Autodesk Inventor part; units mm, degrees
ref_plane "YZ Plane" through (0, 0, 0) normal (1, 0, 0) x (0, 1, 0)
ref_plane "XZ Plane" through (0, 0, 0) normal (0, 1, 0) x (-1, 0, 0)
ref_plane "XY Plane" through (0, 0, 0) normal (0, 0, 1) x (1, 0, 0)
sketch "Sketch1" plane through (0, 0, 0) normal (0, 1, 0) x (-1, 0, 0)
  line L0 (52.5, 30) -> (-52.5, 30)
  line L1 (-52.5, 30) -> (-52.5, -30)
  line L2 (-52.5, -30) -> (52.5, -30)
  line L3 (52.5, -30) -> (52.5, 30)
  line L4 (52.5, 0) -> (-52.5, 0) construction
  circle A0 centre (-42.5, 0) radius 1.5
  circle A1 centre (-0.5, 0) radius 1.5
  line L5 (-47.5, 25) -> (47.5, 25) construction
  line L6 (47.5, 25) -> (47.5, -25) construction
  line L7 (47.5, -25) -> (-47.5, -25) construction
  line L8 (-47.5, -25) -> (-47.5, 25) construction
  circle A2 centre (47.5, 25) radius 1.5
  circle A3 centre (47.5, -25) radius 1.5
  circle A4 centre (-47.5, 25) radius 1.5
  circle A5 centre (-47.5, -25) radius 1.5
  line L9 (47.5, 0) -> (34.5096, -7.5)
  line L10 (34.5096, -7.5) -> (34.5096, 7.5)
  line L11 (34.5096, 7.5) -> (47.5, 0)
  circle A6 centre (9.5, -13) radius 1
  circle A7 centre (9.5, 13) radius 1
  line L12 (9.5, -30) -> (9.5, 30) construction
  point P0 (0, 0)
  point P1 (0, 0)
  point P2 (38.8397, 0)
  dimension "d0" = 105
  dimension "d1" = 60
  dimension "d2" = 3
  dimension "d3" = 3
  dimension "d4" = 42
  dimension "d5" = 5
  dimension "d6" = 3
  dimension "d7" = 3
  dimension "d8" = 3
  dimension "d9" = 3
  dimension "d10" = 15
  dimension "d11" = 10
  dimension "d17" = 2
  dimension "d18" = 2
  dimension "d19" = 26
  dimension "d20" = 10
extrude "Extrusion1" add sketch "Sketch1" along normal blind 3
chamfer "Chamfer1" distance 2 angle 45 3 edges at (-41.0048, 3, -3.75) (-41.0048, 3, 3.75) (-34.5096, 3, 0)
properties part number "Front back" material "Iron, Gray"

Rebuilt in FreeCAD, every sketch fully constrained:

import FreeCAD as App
import Part
import Sketcher


def edges_at(feature, points):
    """Names of the edges that pass closest to the given points."""
    edges = feature.Shape.Edges
    near = lambda p: min(range(len(edges)), key=lambda i: edges[i].distToShape(Part.Vertex(*p))[0])
    return sorted({f"Edge{near(p) + 1}" for p in points})

doc = App.newDocument("Part")
body = doc.addObject("PartDesign::Body", "Body")

sketch1 = body.newObject("Sketcher::SketchObject", "Sketch")
sketch1.AttachmentSupport = (doc.getObject("XZ_Plane"), [""])
sketch1.MapMode = "FlatFace"
sketch1.addGeometry([
    Part.LineSegment(App.Vector(-52.5, -30, 0), App.Vector(-52.5, 30, 0)),
    Part.LineSegment(App.Vector(-52.5, 30, 0), App.Vector(52.5, 30, 0)),
    Part.LineSegment(App.Vector(52.5, 30, 0), App.Vector(52.5, -30, 0)),
    Part.LineSegment(App.Vector(52.5, -30, 0), App.Vector(-52.5, -30, 0)),
    Part.Circle(App.Vector(47.5, -25, 0), App.Vector(0, 0, 1), 1.5),
    Part.Circle(App.Vector(-47.5, -25, 0), App.Vector(0, 0, 1), 1.5),
    Part.Circle(App.Vector(-9.5, -13, 0), App.Vector(0, 0, 1), 1),
    Part.Circle(App.Vector(42.5, 0, 0), App.Vector(0, 0, 1), 1.5),
    Part.Circle(App.Vector(0.5, 0, 0), App.Vector(0, 0, 1), 1.5),
    Part.Circle(App.Vector(47.5, 25, 0), App.Vector(0, 0, 1), 1.5),
    Part.Circle(App.Vector(-9.5, 13, 0), App.Vector(0, 0, 1), 1),
    Part.LineSegment(App.Vector(-34.5, 7.5, 0), App.Vector(-47.5, 0, 0)),
    Part.LineSegment(App.Vector(-47.5, 0, 0), App.Vector(-34.5, -7.5, 0)),
    Part.LineSegment(App.Vector(-34.5, -7.5, 0), App.Vector(-34.5, 7.5, 0)),
    Part.Circle(App.Vector(-47.5, 25, 0), App.Vector(0, 0, 1), 1.5),
], False)
sketch1.addConstraint([
    Sketcher.Constraint("Coincident", 0, 2, 1, 1),
    Sketcher.Constraint("Coincident", 1, 2, 2, 1),
    Sketcher.Constraint("Coincident", 2, 2, 3, 1),
    Sketcher.Constraint("Coincident", 3, 2, 0, 1),
    Sketcher.Constraint("Coincident", 11, 2, 12, 1),
    Sketcher.Constraint("Coincident", 12, 2, 13, 1),
    Sketcher.Constraint("Coincident", 13, 2, 11, 1),
    Sketcher.Constraint("Vertical", 0),
    Sketcher.Constraint("Horizontal", 1),
    Sketcher.Constraint("Vertical", 2),
    Sketcher.Constraint("Horizontal", 3),
    Sketcher.Constraint("Vertical", 13),
    Sketcher.Constraint("Equal", 4, 5),
    Sketcher.Constraint("Equal", 5, 7),
    Sketcher.Constraint("Equal", 7, 8),
    Sketcher.Constraint("Equal", 8, 9),
    Sketcher.Constraint("Equal", 6, 10),
    Sketcher.Constraint("Equal", 9, 14),
    Sketcher.Constraint("Symmetric", 5, 3, 9, 3, -1, 1),
    Sketcher.Constraint("Symmetric", 4, 3, 14, 3, -1, 1),
    Sketcher.Constraint("Symmetric", 0, 2, 2, 2, -1, 1),
    Sketcher.Constraint("Symmetric", 4, 3, 5, 3, -2),
    Sketcher.Constraint("Symmetric", 6, 3, 10, 3, -1),
    Sketcher.Constraint("PointOnObject", 7, 3, -1),
    Sketcher.Constraint("PointOnObject", 8, 3, -1),
    Sketcher.Constraint("PointOnObject", 11, 2, -1),
    Sketcher.Constraint("Vertical", 14, 3, 11, 2),
    Sketcher.Constraint("Equal", 11, 12),
    Sketcher.Constraint("Diameter", 4, 3.0),
    Sketcher.Constraint("Diameter", 6, 2.0),
    Sketcher.Constraint("DistanceX", 1, 1, 1, 2, 105.0),
    Sketcher.Constraint("DistanceY", 0, 1, 0, 2, 60.0),
    Sketcher.Constraint("DistanceY", 13, 1, 13, 2, 15.0),
    Sketcher.Constraint("Distance", 11, 15.0),
    Sketcher.Constraint("DistanceX", 7, 3, 4, 3, 5.0),
    Sketcher.Constraint("DistanceX", 6, 3, 8, 3, 10.0),
    Sketcher.Constraint("DistanceX", 8, 3, 7, 3, 42.0),
    Sketcher.Constraint("DistanceY", 6, 3, 10, 3, 26.0),
    Sketcher.Constraint("DistanceX", 0, 2, 14, 3, 5.0),
    Sketcher.Constraint("DistanceY", 14, 3, 0, 2, 5.0),
])
pad1 = body.newObject("PartDesign::Pad", "Pad")
pad1.Profile = sketch1
pad1.Length = 3
pad1.Reversed = True
doc.recompute()

chamfer = body.newObject("PartDesign::Chamfer", "Chamfer")
chamfer.Base = (pad1, edges_at(pad1, [(-41.005, 3, -3.75), (-41.005, 3, 3.75), (-34.51, 3, 0)]))
chamfer.Size = 2

doc.recompute()
